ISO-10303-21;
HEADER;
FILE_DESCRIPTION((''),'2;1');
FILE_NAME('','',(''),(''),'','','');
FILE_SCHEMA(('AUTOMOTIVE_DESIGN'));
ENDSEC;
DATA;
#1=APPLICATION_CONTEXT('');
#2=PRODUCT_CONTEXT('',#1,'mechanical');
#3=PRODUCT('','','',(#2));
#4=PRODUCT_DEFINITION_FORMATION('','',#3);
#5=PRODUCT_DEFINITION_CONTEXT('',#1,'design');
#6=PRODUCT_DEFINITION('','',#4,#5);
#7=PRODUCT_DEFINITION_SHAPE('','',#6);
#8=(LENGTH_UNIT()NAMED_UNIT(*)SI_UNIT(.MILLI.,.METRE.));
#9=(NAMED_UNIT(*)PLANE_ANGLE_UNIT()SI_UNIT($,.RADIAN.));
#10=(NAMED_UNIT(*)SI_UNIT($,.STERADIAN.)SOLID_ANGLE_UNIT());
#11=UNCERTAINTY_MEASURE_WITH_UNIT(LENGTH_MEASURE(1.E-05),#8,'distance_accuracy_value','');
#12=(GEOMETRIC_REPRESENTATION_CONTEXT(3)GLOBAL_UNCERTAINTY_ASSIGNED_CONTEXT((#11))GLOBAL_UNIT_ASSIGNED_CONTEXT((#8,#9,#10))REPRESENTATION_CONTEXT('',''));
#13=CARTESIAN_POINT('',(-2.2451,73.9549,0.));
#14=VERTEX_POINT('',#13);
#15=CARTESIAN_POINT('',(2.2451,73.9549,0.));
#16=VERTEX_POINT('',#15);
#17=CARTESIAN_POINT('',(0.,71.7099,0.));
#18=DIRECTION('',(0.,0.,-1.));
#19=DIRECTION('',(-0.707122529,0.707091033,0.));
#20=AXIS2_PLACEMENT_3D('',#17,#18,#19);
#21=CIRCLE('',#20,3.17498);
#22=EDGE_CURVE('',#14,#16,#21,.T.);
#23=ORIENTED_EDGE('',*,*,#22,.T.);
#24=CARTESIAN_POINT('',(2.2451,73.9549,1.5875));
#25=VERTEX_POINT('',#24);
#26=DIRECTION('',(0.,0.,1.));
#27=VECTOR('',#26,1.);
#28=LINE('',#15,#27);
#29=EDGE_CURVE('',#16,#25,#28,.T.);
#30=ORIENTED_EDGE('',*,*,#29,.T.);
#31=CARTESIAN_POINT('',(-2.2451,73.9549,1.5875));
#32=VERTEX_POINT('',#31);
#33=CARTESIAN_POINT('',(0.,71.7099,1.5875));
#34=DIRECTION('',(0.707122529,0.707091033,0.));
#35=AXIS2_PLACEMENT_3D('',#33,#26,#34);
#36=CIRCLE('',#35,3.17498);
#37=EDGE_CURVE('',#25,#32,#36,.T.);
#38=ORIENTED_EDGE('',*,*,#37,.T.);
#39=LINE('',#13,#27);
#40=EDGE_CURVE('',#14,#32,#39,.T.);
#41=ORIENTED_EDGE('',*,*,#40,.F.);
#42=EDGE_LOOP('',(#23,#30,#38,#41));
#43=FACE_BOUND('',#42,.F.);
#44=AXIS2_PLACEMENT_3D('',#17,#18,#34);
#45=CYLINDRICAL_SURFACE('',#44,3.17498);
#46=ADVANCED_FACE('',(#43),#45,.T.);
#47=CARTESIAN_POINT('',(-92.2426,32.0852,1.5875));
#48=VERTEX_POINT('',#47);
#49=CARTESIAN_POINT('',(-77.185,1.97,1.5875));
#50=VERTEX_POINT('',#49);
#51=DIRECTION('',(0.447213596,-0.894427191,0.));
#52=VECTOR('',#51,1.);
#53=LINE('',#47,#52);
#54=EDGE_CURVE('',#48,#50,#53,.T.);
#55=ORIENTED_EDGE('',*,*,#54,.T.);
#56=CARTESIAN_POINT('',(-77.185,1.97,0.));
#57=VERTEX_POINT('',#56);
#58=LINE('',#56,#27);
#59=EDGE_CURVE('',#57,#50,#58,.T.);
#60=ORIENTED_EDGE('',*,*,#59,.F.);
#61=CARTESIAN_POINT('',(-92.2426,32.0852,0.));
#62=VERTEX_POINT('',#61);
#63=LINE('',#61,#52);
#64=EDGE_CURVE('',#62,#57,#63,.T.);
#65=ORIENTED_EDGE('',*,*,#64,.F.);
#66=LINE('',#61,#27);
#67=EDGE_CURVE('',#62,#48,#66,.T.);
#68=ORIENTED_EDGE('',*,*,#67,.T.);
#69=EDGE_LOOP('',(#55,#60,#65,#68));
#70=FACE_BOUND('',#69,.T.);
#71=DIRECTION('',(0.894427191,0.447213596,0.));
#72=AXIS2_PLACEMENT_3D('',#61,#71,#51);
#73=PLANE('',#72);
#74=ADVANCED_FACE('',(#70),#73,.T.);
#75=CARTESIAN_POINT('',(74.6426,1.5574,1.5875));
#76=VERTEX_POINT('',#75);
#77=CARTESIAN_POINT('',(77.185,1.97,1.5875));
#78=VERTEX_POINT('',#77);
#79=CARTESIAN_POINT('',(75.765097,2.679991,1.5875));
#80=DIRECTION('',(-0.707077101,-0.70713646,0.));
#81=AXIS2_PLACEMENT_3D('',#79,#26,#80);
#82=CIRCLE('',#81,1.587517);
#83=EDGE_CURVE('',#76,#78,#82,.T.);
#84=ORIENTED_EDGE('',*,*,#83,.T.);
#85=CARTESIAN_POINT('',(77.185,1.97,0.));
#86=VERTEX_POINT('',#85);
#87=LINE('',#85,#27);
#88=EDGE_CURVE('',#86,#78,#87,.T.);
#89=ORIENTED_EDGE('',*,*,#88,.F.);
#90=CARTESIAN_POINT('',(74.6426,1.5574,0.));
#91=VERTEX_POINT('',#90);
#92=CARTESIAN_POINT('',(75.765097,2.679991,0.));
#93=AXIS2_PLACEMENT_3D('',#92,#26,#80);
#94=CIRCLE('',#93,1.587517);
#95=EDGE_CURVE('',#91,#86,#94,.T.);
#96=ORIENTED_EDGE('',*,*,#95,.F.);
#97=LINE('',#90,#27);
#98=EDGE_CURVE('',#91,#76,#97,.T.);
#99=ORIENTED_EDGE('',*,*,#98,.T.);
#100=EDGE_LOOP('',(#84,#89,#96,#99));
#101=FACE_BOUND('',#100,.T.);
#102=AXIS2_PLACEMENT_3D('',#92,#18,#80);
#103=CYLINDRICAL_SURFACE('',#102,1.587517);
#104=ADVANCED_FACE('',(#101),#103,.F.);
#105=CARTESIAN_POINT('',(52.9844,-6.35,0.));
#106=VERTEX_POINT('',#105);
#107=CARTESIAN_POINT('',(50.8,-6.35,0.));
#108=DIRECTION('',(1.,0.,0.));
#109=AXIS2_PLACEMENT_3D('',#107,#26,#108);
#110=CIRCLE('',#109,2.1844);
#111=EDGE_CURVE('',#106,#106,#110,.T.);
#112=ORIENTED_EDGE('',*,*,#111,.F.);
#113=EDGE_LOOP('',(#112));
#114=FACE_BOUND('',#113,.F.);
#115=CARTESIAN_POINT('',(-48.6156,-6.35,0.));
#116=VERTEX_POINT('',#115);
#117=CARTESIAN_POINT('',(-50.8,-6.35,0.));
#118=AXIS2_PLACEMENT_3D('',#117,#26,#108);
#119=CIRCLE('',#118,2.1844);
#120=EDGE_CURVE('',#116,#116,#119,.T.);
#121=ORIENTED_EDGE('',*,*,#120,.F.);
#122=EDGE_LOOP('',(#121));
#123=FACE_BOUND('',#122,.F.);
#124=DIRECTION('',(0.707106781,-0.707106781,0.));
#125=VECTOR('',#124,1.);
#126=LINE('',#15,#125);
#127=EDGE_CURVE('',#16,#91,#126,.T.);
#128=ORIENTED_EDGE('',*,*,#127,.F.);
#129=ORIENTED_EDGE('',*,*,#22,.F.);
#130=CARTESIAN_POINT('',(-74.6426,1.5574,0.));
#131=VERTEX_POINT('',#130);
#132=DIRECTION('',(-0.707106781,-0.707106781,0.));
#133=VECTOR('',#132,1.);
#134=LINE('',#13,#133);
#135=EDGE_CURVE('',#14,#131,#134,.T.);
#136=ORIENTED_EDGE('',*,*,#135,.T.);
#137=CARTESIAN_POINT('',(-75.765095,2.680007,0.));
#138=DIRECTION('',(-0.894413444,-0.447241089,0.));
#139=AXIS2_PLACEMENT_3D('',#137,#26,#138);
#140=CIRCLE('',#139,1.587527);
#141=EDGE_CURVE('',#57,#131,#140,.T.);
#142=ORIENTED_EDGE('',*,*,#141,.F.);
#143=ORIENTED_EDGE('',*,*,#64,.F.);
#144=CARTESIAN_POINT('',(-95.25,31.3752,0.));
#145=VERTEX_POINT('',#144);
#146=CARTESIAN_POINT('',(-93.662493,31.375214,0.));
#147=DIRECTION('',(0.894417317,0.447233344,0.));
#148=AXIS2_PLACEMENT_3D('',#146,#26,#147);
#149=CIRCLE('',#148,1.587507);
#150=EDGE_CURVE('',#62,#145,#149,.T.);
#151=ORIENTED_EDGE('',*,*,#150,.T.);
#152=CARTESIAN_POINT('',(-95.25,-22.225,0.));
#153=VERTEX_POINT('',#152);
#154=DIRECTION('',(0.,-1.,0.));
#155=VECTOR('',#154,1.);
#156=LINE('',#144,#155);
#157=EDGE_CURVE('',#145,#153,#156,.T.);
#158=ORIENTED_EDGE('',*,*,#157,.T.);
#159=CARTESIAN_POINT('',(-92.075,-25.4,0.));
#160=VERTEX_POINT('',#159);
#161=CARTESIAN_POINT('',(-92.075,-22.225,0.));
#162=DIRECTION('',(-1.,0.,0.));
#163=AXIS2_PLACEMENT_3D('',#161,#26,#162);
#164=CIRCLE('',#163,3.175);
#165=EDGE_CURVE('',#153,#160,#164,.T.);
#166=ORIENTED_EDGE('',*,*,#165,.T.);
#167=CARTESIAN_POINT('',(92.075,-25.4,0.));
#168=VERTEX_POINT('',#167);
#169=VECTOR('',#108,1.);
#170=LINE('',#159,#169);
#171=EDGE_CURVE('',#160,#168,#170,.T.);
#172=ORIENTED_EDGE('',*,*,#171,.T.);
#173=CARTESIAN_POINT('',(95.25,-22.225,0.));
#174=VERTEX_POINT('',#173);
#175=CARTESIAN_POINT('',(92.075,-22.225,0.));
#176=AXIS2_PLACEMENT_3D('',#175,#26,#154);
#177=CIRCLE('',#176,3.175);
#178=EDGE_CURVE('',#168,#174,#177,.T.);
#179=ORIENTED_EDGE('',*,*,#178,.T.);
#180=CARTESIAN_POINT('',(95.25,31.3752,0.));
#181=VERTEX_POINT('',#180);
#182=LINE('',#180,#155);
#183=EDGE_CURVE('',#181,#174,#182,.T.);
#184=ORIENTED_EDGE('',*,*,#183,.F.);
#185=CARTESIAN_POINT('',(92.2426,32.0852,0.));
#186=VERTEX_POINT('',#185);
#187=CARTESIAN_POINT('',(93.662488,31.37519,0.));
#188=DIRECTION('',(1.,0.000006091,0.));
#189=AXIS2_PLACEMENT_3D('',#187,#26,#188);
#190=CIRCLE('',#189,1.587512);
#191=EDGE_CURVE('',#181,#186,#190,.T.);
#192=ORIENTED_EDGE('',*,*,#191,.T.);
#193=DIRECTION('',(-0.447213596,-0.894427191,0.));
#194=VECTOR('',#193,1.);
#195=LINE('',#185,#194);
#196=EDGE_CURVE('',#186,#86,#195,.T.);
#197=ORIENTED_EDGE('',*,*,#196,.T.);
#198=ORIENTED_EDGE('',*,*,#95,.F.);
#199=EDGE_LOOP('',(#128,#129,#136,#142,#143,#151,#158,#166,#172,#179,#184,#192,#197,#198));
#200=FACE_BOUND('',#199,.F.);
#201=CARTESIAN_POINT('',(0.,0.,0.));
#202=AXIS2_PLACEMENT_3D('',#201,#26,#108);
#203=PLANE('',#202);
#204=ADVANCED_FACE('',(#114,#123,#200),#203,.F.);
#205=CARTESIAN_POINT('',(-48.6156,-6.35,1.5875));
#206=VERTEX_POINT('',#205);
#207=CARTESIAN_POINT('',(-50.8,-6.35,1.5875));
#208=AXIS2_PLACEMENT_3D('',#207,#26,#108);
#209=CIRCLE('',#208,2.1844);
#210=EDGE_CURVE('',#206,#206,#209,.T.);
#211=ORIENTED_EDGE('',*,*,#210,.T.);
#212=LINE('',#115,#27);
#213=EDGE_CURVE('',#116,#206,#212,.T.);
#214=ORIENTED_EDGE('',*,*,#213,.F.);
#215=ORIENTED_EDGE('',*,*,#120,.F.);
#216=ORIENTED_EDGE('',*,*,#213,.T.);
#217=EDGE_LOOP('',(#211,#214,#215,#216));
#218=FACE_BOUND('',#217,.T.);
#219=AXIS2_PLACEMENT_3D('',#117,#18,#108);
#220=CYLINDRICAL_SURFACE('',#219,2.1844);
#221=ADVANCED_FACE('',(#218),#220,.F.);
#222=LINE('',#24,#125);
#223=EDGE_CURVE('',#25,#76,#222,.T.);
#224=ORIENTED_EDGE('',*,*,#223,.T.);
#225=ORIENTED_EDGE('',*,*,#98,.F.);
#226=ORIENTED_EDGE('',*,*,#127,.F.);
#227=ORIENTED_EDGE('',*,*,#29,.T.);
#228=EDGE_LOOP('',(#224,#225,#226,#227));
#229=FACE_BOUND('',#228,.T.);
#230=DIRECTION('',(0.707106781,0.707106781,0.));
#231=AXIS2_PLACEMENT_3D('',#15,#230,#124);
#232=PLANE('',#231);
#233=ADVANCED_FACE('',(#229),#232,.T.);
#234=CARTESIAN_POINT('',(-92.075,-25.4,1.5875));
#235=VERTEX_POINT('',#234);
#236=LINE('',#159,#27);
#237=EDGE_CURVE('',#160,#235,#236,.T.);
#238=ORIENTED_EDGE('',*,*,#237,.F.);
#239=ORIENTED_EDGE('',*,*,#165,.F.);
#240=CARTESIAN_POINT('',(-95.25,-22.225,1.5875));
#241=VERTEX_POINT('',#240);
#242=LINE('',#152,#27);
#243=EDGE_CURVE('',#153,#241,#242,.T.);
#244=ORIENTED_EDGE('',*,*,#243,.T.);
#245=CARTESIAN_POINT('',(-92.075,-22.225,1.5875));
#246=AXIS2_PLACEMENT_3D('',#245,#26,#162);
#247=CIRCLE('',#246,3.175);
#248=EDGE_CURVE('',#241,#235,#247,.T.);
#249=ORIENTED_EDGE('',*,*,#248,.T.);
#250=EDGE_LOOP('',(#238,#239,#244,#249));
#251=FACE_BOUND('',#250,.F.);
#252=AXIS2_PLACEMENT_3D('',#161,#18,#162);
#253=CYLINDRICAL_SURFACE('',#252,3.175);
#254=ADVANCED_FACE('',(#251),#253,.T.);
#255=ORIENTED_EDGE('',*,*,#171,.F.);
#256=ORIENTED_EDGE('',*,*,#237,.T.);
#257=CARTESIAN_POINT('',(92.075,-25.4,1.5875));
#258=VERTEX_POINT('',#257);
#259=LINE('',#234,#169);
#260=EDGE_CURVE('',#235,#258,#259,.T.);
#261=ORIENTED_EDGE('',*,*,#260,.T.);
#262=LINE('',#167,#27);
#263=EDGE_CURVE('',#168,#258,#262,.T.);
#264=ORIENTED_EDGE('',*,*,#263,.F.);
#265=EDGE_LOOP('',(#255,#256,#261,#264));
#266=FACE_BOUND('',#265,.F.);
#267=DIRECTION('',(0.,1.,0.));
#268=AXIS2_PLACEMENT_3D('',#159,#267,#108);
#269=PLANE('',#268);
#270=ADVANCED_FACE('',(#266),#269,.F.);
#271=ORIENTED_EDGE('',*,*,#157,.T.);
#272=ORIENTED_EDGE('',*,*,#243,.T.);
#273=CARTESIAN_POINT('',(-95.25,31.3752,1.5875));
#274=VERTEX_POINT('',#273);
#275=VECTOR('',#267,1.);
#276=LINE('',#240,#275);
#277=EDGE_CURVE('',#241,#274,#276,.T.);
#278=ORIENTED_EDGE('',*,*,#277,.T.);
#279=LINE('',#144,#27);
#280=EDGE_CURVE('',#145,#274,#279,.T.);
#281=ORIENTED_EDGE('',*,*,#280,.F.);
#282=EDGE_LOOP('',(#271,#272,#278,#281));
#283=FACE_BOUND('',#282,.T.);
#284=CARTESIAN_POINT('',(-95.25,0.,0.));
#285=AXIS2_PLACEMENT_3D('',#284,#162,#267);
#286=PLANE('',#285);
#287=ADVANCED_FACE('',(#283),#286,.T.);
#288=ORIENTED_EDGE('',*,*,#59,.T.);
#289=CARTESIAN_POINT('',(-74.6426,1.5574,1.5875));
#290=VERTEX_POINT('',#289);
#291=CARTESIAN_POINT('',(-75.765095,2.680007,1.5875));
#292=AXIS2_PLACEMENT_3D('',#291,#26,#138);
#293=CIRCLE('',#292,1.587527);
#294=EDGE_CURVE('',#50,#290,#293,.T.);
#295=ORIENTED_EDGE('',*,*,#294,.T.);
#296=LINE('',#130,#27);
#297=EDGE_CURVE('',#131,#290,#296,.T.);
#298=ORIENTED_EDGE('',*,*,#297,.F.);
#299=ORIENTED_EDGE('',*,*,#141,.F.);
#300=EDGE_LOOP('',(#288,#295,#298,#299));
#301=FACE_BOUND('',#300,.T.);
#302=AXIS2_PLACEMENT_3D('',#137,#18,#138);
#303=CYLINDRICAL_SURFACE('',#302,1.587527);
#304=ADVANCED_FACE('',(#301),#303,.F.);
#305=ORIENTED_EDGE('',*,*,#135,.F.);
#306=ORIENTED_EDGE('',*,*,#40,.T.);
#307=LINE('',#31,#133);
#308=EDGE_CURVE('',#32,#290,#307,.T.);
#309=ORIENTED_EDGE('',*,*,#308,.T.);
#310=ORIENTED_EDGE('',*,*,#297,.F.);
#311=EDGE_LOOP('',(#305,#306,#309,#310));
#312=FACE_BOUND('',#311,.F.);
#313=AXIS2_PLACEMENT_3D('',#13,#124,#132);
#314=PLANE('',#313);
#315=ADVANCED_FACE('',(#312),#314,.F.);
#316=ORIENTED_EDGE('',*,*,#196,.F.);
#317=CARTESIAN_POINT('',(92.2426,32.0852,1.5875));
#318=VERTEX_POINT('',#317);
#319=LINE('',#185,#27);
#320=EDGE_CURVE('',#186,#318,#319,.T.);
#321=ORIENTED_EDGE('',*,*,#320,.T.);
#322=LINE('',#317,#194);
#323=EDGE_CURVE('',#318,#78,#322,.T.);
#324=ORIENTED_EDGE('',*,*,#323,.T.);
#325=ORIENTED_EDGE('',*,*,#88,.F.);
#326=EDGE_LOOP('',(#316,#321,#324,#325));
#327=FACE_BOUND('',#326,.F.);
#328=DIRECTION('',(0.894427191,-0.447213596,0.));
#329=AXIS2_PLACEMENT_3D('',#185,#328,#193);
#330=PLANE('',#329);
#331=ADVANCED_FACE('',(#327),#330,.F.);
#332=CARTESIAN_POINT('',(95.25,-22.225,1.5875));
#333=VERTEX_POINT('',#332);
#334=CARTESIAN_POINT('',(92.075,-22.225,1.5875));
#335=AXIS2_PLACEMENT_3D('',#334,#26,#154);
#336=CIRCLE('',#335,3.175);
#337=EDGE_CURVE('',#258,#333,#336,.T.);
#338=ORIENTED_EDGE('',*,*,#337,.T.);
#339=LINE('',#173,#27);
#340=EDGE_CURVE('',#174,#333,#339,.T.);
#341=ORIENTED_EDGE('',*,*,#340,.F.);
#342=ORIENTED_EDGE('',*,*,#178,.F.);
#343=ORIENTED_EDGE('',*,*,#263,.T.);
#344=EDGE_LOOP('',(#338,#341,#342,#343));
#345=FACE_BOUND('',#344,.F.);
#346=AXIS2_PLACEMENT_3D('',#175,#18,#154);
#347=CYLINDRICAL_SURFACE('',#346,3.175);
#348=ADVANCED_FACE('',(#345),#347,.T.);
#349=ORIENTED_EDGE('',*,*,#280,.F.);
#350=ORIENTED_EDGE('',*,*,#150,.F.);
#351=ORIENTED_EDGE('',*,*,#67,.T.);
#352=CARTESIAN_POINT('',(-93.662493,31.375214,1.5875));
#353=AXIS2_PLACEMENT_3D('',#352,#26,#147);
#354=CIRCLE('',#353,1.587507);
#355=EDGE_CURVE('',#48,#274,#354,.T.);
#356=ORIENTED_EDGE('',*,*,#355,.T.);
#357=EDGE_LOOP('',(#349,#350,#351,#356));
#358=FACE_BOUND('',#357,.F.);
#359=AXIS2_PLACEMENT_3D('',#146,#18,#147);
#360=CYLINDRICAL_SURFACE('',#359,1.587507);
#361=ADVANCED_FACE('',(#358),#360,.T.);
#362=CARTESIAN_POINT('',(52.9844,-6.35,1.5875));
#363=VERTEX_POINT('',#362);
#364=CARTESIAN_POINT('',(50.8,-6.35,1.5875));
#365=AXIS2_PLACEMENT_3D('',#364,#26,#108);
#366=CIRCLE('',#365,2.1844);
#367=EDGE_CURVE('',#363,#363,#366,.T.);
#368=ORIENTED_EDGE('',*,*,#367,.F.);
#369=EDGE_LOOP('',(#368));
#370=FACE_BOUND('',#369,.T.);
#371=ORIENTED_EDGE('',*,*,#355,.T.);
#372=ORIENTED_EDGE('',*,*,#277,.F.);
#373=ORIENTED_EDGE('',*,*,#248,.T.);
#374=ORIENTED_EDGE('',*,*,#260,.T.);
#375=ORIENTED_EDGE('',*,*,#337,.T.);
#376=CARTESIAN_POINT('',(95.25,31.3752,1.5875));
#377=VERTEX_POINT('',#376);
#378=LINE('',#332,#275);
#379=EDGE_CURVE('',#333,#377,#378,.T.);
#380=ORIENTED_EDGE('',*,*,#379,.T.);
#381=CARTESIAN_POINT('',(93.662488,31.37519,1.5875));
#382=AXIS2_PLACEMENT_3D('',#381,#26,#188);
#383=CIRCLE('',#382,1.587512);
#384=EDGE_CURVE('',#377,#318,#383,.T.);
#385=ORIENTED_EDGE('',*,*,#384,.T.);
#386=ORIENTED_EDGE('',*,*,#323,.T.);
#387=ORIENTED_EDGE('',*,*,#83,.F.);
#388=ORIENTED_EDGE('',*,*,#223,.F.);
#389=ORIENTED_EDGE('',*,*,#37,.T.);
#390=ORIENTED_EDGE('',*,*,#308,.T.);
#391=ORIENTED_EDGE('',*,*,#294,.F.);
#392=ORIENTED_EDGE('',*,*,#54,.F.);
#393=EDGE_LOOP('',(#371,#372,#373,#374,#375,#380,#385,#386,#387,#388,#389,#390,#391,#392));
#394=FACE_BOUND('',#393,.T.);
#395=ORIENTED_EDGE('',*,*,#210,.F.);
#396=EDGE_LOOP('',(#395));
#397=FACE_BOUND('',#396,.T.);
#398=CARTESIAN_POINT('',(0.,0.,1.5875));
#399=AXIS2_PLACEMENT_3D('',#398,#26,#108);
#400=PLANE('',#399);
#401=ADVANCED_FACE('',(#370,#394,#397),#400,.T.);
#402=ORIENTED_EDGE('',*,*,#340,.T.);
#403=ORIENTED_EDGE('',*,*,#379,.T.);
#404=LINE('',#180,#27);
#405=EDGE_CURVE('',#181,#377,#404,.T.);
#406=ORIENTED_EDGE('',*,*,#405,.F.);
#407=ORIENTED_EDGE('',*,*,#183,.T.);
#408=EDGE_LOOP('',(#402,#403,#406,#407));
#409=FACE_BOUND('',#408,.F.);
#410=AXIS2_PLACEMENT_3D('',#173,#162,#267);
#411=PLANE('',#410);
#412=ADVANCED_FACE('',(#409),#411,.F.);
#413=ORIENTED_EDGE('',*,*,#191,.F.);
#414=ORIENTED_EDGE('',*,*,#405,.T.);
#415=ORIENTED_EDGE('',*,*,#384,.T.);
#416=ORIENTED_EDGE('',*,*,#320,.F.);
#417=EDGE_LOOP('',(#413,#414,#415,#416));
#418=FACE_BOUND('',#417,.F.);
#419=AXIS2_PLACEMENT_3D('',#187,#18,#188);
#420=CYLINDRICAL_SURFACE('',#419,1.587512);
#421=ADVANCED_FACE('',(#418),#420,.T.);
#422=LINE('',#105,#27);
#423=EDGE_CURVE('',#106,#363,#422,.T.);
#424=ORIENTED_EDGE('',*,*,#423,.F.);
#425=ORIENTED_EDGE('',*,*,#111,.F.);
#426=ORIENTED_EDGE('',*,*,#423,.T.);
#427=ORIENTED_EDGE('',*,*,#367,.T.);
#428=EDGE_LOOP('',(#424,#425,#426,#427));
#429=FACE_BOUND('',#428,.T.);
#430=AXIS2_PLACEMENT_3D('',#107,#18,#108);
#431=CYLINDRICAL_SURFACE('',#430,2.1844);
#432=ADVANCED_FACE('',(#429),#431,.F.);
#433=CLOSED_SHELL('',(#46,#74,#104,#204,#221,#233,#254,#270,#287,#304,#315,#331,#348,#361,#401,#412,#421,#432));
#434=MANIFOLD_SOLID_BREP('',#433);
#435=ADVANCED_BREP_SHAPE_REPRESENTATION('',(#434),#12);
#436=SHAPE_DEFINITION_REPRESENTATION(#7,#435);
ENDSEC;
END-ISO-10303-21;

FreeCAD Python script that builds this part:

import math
import FreeCAD as App
import Part
import Sketcher

V = App.Vector
Q = App.Units.Quantity

doc = App.newDocument("Part")
body = doc.addObject("PartDesign::Body", "Body")

# Sketch on XY plane
sketch1 = doc.addObject("Sketcher::SketchObject", "Sketch")
body.addObject(sketch1)
sketch1.AttachmentSupport = (doc.XY_Plane, [""])
sketch1.MapMode = "FlatFace"
sketch1.addGeometry([
    Part.LineSegment(V(-95.25, 31.3752, 0), V(-95.25, -22.225, 0)),  # 0
    Part.ArcOfCircle(Part.Circle(V(-92.075, -22.225, 0), V(0, 0, 1), 3.175), math.radians(180), math.radians(270)),  # 1
    Part.LineSegment(V(-92.075, -25.4, 0), V(92.075, -25.4, 0)),  # 2
    Part.ArcOfCircle(Part.Circle(V(92.075, -22.225, 0), V(0, 0, 1), 3.175), math.radians(-90), math.radians(0)),  # 3
    Part.LineSegment(V(95.25, -22.225, 0), V(95.25, 31.3752, 0)),  # 4
    Part.ArcOfCircle(Part.Circle(V(93.6625, 31.3752, 0), V(0, 0, 1), 1.5875), math.radians(0), math.radians(153.433335)),  # 5
    Part.LineSegment(V(92.2426, 32.0852, 0), V(77.185, 1.97, 0)),  # 6
    Part.ArcOfCircle(Part.Circle(V(75.7651, 2.68, 0), V(0, 0, 1), 1.587525), math.radians(-134.997448), math.radians(-26.566665)),  # 7
    Part.LineSegment(V(74.6426, 1.5574, 0), V(2.2451, 73.9549, 0)),  # 8
    Part.ArcOfCircle(Part.Circle(V(0, 71.7099, 0), V(0, 0, 1), 3.17498), math.radians(44.998724), math.radians(135.001276)),  # 9
    Part.LineSegment(V(-2.2451, 73.9549, 0), V(-74.6426, 1.5574, 0)),  # 10
    Part.ArcOfCircle(Part.Circle(V(-75.7651, 2.68, 0), V(0, 0, 1), 1.587519), math.radians(-153.433335), math.radians(-45.002552)),  # 11
    Part.LineSegment(V(-77.185, 1.97, 0), V(-92.2426, 32.0852, 0)),  # 12
    Part.ArcOfCircle(Part.Circle(V(-93.6625, 31.3752, 0), V(0, 0, 1), 1.587519), math.radians(26.566665), math.radians(180)),  # 13
    Part.Circle(V(50.8, -6.35, 0), V(0, 0, 1), 2.1844),  # 14
    Part.Circle(V(-50.8, -6.35, 0), V(0, 0, 1), 2.1844),  # 15
], False)
sketch1.addConstraint([
    Sketcher.Constraint("Coincident", 0, 2, 1, 1),
    Sketcher.Constraint("Coincident", 1, 2, 2, 1),
    Sketcher.Constraint("Coincident", 2, 2, 3, 1),
    Sketcher.Constraint("Coincident", 3, 2, 4, 1),
    Sketcher.Constraint("Coincident", 4, 2, 5, 1),
    Sketcher.Constraint("Coincident", 5, 2, 6, 1),
    Sketcher.Constraint("Coincident", 6, 2, 7, 2),
    Sketcher.Constraint("Coincident", 7, 1, 8, 1),
    Sketcher.Constraint("Coincident", 8, 2, 9, 1),
    Sketcher.Constraint("Coincident", 9, 2, 10, 1),
    Sketcher.Constraint("Coincident", 10, 2, 11, 2),
    Sketcher.Constraint("Coincident", 11, 1, 12, 1),
    Sketcher.Constraint("Coincident", 12, 2, 13, 1),
    Sketcher.Constraint("Coincident", 13, 2, 0, 1),
    Sketcher.Constraint("Vertical", 0),
    Sketcher.Constraint("Horizontal", 2),
    Sketcher.Constraint("Vertical", 4),
    Sketcher.Constraint("PointOnObject", 9, 3, -2),
    Sketcher.Constraint("Diameter", 14, Q("0.172 in")),
    Sketcher.Constraint("Diameter", 15, Q("0.172 in")),
    Sketcher.Constraint("DistanceX", -1, 1, 14, 3, Q("2 in")),
    Sketcher.Constraint("DistanceX", 15, 3, -1, 1, Q("2 in")),
    Sketcher.Constraint("DistanceY", 1, 2, -1, 1, Q("1 in")),
    Sketcher.Constraint("Radius", 1, Q("0.125 in")),
    Sketcher.Constraint("Radius", 3, Q("0.125 in")),
    Sketcher.Constraint("Radius", 5, Q("0.0625 in")),
    Sketcher.Constraint("Radius", 7, Q("0.0625 in")),
    Sketcher.Constraint("Radius", 9, Q("0.125 in")),
    Sketcher.Constraint("Radius", 11, Q("0.0625 in")),
    Sketcher.Constraint("Radius", 13, Q("0.0625 in")),
    Sketcher.Constraint("DistanceY", 14, 3, -1, 1, Q("0.25 in")),
    Sketcher.Constraint("DistanceY", 15, 3, -1, 1, Q("0.25 in")),
    Sketcher.Constraint("DistanceX", 0, 2, -1, 1, Q("3.75 in")),
    Sketcher.Constraint("DistanceX", -1, 1, 3, 2, Q("3.75 in")),
    Sketcher.Constraint("DistanceX", 0, 2, 1, 2, Q("0.125 in")),
    Sketcher.Constraint("DistanceY", 1, 2, 0, 2, Q("0.125 in")),
    Sketcher.Constraint("DistanceX", 2, 2, 5, 3, Q("0.0625 in")),
    Sketcher.Constraint("DistanceY", 2, 2, 3, 2, Q("0.125 in")),
    Sketcher.Constraint("DistanceY", 0, 2, 0, 1, 53.6002),
    Sketcher.Constraint("DistanceY", 4, 1, 4, 2, 53.6002),
    Sketcher.Constraint("DistanceY", -1, 1, 7, 3, Q("0.1055 in")),
    Sketcher.Constraint("DistanceY", -1, 1, 11, 3, Q("0.1055 in")),
    Sketcher.Constraint("DistanceX", -1, 1, 5, 2, Q("3.6316 in")),
    Sketcher.Constraint("DistanceY", -1, 1, 5, 2, Q("1.2632 in")),
    Sketcher.Constraint("DistanceX", -1, 1, 8, 2, Q("0.0884 in")),
    Sketcher.Constraint("DistanceY", -1, 1, 8, 2, Q("2.9116 in")),
    Sketcher.Constraint("DistanceX", 9, 2, -1, 1, Q("0.0884 in")),
    Sketcher.Constraint("DistanceX", 12, 2, -1, 1, Q("3.6316 in")),
    Sketcher.Constraint("DistanceY", -1, 1, 12, 2, Q("1.2632 in")),
    Sketcher.Constraint("DistanceX", 7, 3, 6, 2, Q("0.0559 in")),
    Sketcher.Constraint("DistanceX", 7, 1, 7, 3, Q("0.0442 in")),
    Sketcher.Constraint("DistanceX", 11, 3, 10, 2, Q("0.0442 in")),
    Sketcher.Constraint("DistanceX", 11, 1, 11, 3, Q("0.0559 in")),
    Sketcher.Constraint("Distance", 6, 33.6698),
    Sketcher.Constraint("Distance", 10, 102.3855),
])
pad1 = doc.addObject("PartDesign::Pad", "Pad")
body.addObject(pad1)
pad1.Profile = sketch1
pad1.Length = Q("0.0625 in")

doc.recompute()
